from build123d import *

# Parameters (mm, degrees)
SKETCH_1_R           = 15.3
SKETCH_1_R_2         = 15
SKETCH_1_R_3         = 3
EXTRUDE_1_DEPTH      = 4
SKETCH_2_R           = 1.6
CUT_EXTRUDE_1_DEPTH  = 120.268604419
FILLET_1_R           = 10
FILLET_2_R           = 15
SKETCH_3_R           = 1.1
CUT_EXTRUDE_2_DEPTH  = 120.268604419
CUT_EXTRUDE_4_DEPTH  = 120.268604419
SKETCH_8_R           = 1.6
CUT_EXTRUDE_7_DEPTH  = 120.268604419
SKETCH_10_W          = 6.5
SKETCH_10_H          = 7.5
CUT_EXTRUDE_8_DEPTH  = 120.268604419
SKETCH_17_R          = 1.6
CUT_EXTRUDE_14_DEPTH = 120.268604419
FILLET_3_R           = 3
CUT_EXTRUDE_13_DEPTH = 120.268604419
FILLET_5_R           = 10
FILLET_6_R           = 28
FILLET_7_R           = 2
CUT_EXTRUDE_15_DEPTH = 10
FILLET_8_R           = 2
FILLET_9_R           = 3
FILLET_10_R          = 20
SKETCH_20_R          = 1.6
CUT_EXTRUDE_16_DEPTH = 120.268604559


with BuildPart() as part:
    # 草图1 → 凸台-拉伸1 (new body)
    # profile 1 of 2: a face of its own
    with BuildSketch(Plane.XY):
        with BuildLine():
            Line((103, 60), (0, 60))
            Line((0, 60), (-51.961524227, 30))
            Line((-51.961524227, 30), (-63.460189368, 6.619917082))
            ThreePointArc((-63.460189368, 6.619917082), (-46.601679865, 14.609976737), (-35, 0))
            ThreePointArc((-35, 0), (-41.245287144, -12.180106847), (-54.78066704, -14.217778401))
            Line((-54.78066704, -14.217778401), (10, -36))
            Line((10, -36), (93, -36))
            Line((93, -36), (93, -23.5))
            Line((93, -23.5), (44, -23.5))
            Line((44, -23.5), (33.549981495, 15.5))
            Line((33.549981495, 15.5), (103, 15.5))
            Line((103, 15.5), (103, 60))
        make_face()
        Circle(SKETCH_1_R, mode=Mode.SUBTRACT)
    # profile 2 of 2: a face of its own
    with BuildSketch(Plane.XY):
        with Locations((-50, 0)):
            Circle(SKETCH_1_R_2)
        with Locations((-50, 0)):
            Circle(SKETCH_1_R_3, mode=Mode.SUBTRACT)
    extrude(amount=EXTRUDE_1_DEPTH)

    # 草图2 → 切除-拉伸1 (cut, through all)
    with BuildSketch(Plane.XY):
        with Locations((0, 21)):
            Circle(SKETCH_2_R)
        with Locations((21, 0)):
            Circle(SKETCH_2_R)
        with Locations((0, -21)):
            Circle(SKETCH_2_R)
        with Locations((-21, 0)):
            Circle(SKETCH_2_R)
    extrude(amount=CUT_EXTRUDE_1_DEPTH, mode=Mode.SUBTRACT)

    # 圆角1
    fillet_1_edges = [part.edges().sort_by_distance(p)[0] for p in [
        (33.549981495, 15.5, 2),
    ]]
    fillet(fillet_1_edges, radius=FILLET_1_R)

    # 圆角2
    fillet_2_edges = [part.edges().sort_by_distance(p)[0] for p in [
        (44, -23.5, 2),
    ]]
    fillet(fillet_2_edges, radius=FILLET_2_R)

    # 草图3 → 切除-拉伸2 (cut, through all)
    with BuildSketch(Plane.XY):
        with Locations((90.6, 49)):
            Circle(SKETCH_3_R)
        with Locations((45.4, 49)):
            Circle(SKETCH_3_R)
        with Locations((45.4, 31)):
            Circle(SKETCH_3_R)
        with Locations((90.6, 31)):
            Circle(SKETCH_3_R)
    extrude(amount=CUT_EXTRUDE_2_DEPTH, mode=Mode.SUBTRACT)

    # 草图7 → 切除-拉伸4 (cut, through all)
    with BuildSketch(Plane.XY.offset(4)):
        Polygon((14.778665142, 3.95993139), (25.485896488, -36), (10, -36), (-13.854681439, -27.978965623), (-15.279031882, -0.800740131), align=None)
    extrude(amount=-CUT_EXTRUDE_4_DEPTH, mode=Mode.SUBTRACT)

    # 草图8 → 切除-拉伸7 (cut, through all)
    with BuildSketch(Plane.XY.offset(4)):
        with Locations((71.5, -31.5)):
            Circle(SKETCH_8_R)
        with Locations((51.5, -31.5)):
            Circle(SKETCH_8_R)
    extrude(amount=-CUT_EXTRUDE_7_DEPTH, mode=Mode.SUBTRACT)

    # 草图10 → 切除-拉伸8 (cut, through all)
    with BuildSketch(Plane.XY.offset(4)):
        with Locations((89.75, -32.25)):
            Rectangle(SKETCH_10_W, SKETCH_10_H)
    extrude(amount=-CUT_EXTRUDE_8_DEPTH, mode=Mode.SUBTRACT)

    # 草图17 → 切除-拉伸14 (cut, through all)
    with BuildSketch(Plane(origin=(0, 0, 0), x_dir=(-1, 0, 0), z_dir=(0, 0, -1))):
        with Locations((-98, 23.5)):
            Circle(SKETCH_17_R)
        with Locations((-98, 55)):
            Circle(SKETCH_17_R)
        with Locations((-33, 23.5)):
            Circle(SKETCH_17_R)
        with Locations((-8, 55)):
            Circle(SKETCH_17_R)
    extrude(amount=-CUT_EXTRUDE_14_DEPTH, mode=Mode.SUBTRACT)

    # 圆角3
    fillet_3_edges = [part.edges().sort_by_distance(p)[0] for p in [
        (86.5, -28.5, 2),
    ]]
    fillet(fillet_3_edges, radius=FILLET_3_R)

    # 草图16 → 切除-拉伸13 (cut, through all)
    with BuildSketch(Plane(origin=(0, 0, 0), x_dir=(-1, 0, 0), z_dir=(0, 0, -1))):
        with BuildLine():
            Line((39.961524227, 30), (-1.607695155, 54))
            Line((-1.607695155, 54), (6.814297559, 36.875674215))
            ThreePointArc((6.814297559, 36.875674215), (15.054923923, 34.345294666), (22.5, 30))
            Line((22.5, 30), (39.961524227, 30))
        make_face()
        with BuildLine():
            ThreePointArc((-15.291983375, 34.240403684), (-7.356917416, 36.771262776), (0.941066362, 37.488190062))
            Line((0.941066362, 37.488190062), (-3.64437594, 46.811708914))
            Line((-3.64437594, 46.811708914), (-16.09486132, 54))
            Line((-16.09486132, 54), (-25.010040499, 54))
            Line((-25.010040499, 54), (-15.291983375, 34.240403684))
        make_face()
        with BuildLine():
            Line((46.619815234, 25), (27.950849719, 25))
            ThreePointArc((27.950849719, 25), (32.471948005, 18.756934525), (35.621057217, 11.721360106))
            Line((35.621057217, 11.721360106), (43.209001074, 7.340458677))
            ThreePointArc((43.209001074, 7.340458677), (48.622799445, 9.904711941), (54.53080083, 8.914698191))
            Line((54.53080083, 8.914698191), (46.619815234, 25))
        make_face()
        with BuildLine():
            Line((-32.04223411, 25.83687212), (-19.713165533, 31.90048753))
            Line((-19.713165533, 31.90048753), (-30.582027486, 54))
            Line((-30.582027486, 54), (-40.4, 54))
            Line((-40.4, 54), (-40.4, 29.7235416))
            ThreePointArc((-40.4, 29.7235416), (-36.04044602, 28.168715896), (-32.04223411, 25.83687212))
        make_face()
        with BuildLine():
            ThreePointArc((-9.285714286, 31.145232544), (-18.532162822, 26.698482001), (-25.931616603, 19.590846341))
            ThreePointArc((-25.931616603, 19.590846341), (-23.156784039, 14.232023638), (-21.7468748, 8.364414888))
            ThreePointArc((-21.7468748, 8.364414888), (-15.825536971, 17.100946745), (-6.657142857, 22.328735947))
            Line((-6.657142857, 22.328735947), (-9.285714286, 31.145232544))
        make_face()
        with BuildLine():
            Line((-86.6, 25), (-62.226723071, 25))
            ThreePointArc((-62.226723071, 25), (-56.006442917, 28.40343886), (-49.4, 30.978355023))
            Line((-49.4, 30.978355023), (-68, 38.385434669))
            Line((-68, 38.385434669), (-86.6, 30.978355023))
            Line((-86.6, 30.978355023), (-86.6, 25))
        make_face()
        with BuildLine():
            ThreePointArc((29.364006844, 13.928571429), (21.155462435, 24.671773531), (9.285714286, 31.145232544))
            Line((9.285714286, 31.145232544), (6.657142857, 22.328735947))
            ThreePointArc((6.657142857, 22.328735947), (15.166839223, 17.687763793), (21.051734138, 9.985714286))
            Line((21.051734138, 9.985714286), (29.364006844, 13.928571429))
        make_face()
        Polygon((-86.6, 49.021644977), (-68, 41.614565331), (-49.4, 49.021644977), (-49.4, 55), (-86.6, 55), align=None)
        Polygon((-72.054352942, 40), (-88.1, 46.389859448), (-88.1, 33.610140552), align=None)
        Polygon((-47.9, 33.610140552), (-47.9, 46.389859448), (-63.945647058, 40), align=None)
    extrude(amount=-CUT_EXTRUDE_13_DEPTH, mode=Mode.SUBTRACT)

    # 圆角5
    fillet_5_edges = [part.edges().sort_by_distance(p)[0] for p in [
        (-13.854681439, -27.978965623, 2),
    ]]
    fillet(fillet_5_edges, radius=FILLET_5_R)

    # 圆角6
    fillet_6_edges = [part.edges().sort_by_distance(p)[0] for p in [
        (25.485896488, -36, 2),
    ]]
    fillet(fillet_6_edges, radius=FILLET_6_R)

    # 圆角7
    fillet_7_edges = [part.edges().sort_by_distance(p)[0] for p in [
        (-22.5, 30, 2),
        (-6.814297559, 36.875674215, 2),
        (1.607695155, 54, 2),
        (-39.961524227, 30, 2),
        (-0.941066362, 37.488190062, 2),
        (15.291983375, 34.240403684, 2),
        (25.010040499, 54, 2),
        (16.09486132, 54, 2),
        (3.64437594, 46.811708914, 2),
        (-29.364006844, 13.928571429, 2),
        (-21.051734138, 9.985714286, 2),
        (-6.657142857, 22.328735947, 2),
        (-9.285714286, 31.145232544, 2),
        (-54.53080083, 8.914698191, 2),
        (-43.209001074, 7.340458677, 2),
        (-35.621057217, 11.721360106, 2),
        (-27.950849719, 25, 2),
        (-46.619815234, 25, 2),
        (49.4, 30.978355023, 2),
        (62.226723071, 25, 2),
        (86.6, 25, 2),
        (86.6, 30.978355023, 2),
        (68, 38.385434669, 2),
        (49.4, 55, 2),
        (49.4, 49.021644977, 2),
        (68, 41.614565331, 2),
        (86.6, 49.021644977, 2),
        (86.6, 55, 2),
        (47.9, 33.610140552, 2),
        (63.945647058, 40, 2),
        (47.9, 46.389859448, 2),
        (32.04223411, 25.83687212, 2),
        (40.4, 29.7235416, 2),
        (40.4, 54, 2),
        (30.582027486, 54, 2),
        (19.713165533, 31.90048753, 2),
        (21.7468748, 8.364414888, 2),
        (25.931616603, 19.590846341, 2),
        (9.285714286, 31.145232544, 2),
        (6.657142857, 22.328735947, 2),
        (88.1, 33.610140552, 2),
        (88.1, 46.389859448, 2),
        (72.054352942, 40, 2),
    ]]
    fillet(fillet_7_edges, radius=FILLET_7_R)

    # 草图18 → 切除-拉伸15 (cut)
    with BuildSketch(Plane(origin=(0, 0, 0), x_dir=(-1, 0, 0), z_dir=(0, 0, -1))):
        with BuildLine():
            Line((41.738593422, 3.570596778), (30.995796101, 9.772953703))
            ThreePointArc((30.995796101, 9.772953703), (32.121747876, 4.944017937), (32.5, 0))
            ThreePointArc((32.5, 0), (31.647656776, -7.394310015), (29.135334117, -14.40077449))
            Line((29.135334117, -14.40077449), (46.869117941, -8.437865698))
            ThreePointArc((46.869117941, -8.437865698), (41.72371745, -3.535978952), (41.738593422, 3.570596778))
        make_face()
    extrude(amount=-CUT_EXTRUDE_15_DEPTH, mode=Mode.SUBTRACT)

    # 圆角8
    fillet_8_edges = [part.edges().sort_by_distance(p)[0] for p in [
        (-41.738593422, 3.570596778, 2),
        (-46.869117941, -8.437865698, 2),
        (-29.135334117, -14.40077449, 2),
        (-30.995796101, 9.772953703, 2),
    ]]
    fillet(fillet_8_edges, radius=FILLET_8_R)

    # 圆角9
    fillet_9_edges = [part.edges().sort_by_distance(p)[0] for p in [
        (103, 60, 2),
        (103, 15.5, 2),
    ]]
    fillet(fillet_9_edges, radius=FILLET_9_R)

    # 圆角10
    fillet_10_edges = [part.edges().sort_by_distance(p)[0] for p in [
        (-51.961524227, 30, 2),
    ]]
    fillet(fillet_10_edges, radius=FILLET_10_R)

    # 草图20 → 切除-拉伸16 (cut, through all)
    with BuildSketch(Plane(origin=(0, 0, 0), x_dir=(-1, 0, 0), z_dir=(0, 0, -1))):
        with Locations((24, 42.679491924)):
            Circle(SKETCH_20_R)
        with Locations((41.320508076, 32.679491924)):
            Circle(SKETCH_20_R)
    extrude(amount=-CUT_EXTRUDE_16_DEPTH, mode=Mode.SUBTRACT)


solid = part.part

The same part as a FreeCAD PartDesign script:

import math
import FreeCAD as App
import Part
import Sketcher

V = App.Vector
Q = App.Units.Quantity


def edges_at(feature, points):
    """Names of the edges that pass closest to the given points."""
    edges = feature.Shape.Edges
    near = lambda p: min(range(len(edges)), key=lambda i: edges[i].distToShape(Part.Vertex(*p))[0])
    return sorted({f"Edge{near(p) + 1}" for p in points})


def add_polygon(sketch, points):
    """Adds a closed chain of lines whose ends are joined by coincident constraints."""
    first, n = sketch.GeometryCount, len(points)
    for a, b in zip(points, points[1:] + points[:1]):
        sketch.addGeometry(Part.LineSegment(App.Vector(*a, 0), App.Vector(*b, 0)), False)
    for i in range(n):
        sketch.addConstraint(Sketcher.Constraint("Coincident", first + i, 2, first + (i + 1) % n, 1))

doc = App.newDocument("Part")
body = doc.addObject("PartDesign::Body", "Body")

sketch1 = body.newObject("Sketcher::SketchObject", "Sketch")
sketch1.AttachmentSupport = (doc.getObject("XY_Plane"), [""])
sketch1.MapMode = "FlatFace"
sketch1.addGeometry(Part.LineSegment(V(103, 60, 0), V(0, 60, 0)), False)
sketch1.addGeometry(Part.LineSegment(V(0, 60, 0), V(-52, 30, 0)), False)
sketch1.addGeometry(Part.LineSegment(V(-52, 30, 0), V(-63.5, 6.6, 0)), False)
sketch1.addGeometry(Part.ArcOfCircle(Part.Circle(V(-50, 0, 0), V(0, 0, 1), 15), math.radians(154), math.radians(251)), False)
sketch1.addGeometry(Part.LineSegment(V(-54.8, -14.2, 0), V(10, -36, 0)), False)
sketch1.addGeometry(Part.LineSegment(V(10, -36, 0), V(93, -36, 0)), False)
sketch1.addGeometry(Part.LineSegment(V(93, -36, 0), V(93, -23.5, 0)), False)
sketch1.addGeometry(Part.LineSegment(V(93, -23.5, 0), V(44, -23.5, 0)), False)
sketch1.addGeometry(Part.LineSegment(V(44, -23.5, 0), V(33.5, 15.5, 0)), False)
sketch1.addGeometry(Part.LineSegment(V(33.5, 15.5, 0), V(103, 15.5, 0)), False)
sketch1.addGeometry(Part.LineSegment(V(103, 15.5, 0), V(103, 60, 0)), False)
sketch1.addGeometry(Part.Circle(V(0, 0, 0), V(0, 0, 1), 15.3), False)
sketch1.addGeometry(Part.Circle(V(-50, 0, 0), V(0, 0, 1), 3), False)
sketch1.addConstraint(Sketcher.Constraint("Coincident", 0, 2, 1, 1))
sketch1.addConstraint(Sketcher.Constraint("Coincident", 1, 2, 2, 1))
sketch1.addConstraint(Sketcher.Constraint("Tangent", 2, 2, 3, 1))
sketch1.addConstraint(Sketcher.Constraint("Tangent", 3, 2, 4, 1))
sketch1.addConstraint(Sketcher.Constraint("Coincident", 4, 2, 5, 1))
sketch1.addConstraint(Sketcher.Constraint("Coincident", 5, 2, 6, 1))
sketch1.addConstraint(Sketcher.Constraint("Coincident", 6, 2, 7, 1))
sketch1.addConstraint(Sketcher.Constraint("Coincident", 7, 2, 8, 1))
sketch1.addConstraint(Sketcher.Constraint("Coincident", 8, 2, 9, 1))
sketch1.addConstraint(Sketcher.Constraint("Coincident", 9, 2, 10, 1))
sketch1.addConstraint(Sketcher.Constraint("Coincident", 10, 2, 0, 1))
sketch1.addConstraint(Sketcher.Constraint("Horizontal", 0))
sketch1.addConstraint(Sketcher.Constraint("Horizontal", 5))
sketch1.addConstraint(Sketcher.Constraint("Vertical", 6))
sketch1.addConstraint(Sketcher.Constraint("Horizontal", 7))
sketch1.addConstraint(Sketcher.Constraint("Horizontal", 9))
sketch1.addConstraint(Sketcher.Constraint("Vertical", 10))
sketch1.addConstraint(Sketcher.Constraint("Coincident", 11, 3, -1, 1))
sketch1.addConstraint(Sketcher.Constraint("Coincident", 12, 3, 3, 3))
sketch1.addConstraint(Sketcher.Constraint("PointOnObject", 3, 3, -1))
sketch1.addConstraint(Sketcher.Constraint("PointOnObject", 0, 2, -2))
sketch1.addConstraint(Sketcher.Constraint("Diameter", 12, Q("6 mm")))
sketch1.addConstraint(Sketcher.Constraint("Radius", 3, Q("15 mm")))
sketch1.addConstraint(Sketcher.Constraint("Diameter", 11, Q("30.6 mm")))
sketch1.addConstraint(Sketcher.Constraint("DistanceX", 0, 2, 0, 1, Q("103 mm")))
sketch1.addConstraint(Sketcher.Constraint("DistanceX", 5, 1, 5, 2, Q("83 mm")))
sketch1.addConstraint(Sketcher.Constraint("DistanceX", 7, 2, 7, 1, Q("49 mm")))
sketch1.addConstraint(Sketcher.Constraint("Angle", 1, Q("-150 deg")))
sketch1.addConstraint(Sketcher.Constraint("Angle", 8, Q("105 deg")))
sketch1.addConstraint(Sketcher.Constraint("Distance", 1, Q("60 mm")))
sketch1.addConstraint(Sketcher.Constraint("DistanceY", 6, 1, 6, 2, Q("12.5 mm")))
sketch1.addConstraint(Sketcher.Constraint("DistanceY", 10, 1, 10, 2, Q("44.5 mm")))
sketch1.addConstraint(Sketcher.Constraint("DistanceX", 3, 3, -1, 1, Q("50 mm")))
sketch1.addConstraint(Sketcher.Constraint("DistanceY", -1, 1, 0, 2, Q("60 mm")))
sketch1.addConstraint(Sketcher.Constraint("DistanceX", -1, 1, 4, 2, Q("10 mm")))
sketch1.addConstraint(Sketcher.Constraint("DistanceY", 4, 2, -1, 1, Q("36 mm")))
pad1 = body.newObject("PartDesign::Pad", "Pad")
pad1.Profile = sketch1
pad1.Length = 4

sketch2 = body.newObject("Sketcher::SketchObject", "Sketch001")
sketch2.AttachmentSupport = (doc.getObject("XY_Plane"), [""])
sketch2.MapMode = "FlatFace"
sketch2.addGeometry(Part.Circle(V(0, 21, 0), V(0, 0, 1), 1.6), False)
sketch2.addGeometry(Part.Circle(V(21, 0, 0), V(0, 0, 1), 1.6), False)
sketch2.addGeometry(Part.Circle(V(0, -21, 0), V(0, 0, 1), 1.6), False)
sketch2.addGeometry(Part.Circle(V(-21, 0, 0), V(0, 0, 1), 1.6), False)
sketch2.addConstraint(Sketcher.Constraint("Equal", 0, 1))
sketch2.addConstraint(Sketcher.Constraint("Equal", 1, 2))
sketch2.addConstraint(Sketcher.Constraint("Equal", 2, 3))
sketch2.addConstraint(Sketcher.Constraint("Symmetric", 0, 3, 2, 3, -1, 1))
sketch2.addConstraint(Sketcher.Constraint("Symmetric", 1, 3, 3, 3, -1, 1))
sketch2.addConstraint(Sketcher.Constraint("PointOnObject", 0, 3, -2))
sketch2.addConstraint(Sketcher.Constraint("PointOnObject", 1, 3, -1))
sketch2.addConstraint(Sketcher.Constraint("Diameter", 0, Q("3.2 mm")))
sketch2.addConstraint(Sketcher.Constraint("DistanceY", -1, 1, 0, 3, Q("21 mm")))
sketch2.addConstraint(Sketcher.Constraint("DistanceX", -1, 1, 1, 3, Q("21 mm")))
pocket1 = body.newObject("PartDesign::Pocket", "Pocket")
pocket1.Profile = sketch2
pocket1.Type = "ThroughAll"
pocket1.Reversed = True
doc.recompute()

fillet = body.newObject("PartDesign::Fillet", "Fillet")
fillet.Base = (pocket1, edges_at(pocket1, [(33.55, 15.5, 2)]))
fillet.Radius = 10
doc.recompute()

fillet2 = body.newObject("PartDesign::Fillet", "Fillet001")
fillet2.Base = (fillet, edges_at(fillet, [(44, -23.5, 2)]))
fillet2.Radius = 15

sketch3 = body.newObject("Sketcher::SketchObject", "Sketch002")
sketch3.AttachmentSupport = (doc.getObject("XY_Plane"), [""])
sketch3.MapMode = "FlatFace"
sketch3.addGeometry(Part.Circle(V(90.6, 49, 0), V(0, 0, 1), 1.1), False)
sketch3.addGeometry(Part.Circle(V(45.4, 49, 0), V(0, 0, 1), 1.1), False)
sketch3.addGeometry(Part.Circle(V(45.4, 31, 0), V(0, 0, 1), 1.1), False)
sketch3.addGeometry(Part.Circle(V(90.6, 31, 0), V(0, 0, 1), 1.1), False)
sketch3.addConstraint(Sketcher.Constraint("Equal", 0, 1))
sketch3.addConstraint(Sketcher.Constraint("Equal", 1, 2))
sketch3.addConstraint(Sketcher.Constraint("Equal", 2, 3))
sketch3.addConstraint(Sketcher.Constraint("Horizontal", 0, 3, 1, 3))
sketch3.addConstraint(Sketcher.Constraint("Horizontal", 2, 3, 3, 3))
sketch3.addConstraint(Sketcher.Constraint("Vertical", 1, 3, 2, 3))
sketch3.addConstraint(Sketcher.Constraint("Vertical", 0, 3, 3, 3))
sketch3.addConstraint(Sketcher.Constraint("Diameter", 0, Q("2.2 mm")))
sketch3.addConstraint(Sketcher.Constraint("DistanceY", -1, 1, 0, 3, Q("49 mm")))
sketch3.addConstraint(Sketcher.Constraint("DistanceY", -1, 1, 2, 3, Q("31 mm")))
sketch3.addConstraint(Sketcher.Constraint("DistanceX", -1, 1, 0, 3, Q("90.6 mm")))
sketch3.addConstraint(Sketcher.Constraint("DistanceX", -1, 1, 1, 3, Q("45.4 mm")))
pocket2 = body.newObject("PartDesign::Pocket", "Pocket001")
pocket2.Profile = sketch3
pocket2.Type = "ThroughAll"
pocket2.Reversed = True

sketch4 = body.newObject("Sketcher::SketchObject", "Sketch003")
sketch4.AttachmentSupport = (doc.getObject("XY_Plane"), [""])
sketch4.MapMode = "FlatFace"
sketch4.AttachmentOffset = App.Placement(V(0, 0, 4), App.Rotation())
add_polygon(sketch4, [(25, -36), (15, 4), (-15, -1), (-14, -28), (10, -36)])
sketch4.addConstraint(Sketcher.Constraint("Horizontal", 4))
sketch4.addConstraint(Sketcher.Constraint("Angle", 0, Q("105 deg")))
sketch4.addConstraint(Sketcher.Constraint("Angle", 1, Q("-171 deg")))
sketch4.addConstraint(Sketcher.Constraint("Angle", 2, Q("-87 deg")))
sketch4.addConstraint(Sketcher.Constraint("DistanceX", -1, 1, 3, 2, Q("10 mm")))
sketch4.addConstraint(Sketcher.Constraint("DistanceY", 3, 2, -1, 1, Q("36 mm")))
sketch4.addConstraint(Sketcher.Constraint("Distance", 1, Q("30.43237 mm")))
sketch4.addConstraint(Sketcher.Constraint("DistanceX", 4, 1, 4, 2, Q("15.485896 mm")))
sketch4.addConstraint(Sketcher.Constraint("DistanceY", -1, 1, 0, 2, Q("3.959931 mm")))
sketch4.addConstraint(Sketcher.Constraint("DistanceX", 2, 2, -1, 1, Q("13.854681 mm")))
pocket3 = body.newObject("PartDesign::Pocket", "Pocket002")
pocket3.Profile = sketch4
pocket3.Type = "ThroughAll"

sketch5 = body.newObject("Sketcher::SketchObject", "Sketch004")
sketch5.AttachmentSupport = (doc.getObject("XY_Plane"), [""])
sketch5.MapMode = "FlatFace"
sketch5.AttachmentOffset = App.Placement(V(0, 0, 4), App.Rotation())
sketch5.addGeometry(Part.Circle(V(71.5, -31.5, 0), V(0, 0, 1), 1.6), False)
sketch5.addGeometry(Part.Circle(V(51.5, -31.5, 0), V(0, 0, 1), 1.6), False)
sketch5.addConstraint(Sketcher.Constraint("Equal", 0, 1))
sketch5.addConstraint(Sketcher.Constraint("Horizontal", 0, 3, 1, 3))
sketch5.addConstraint(Sketcher.Constraint("Diameter", 0, Q("3.2 mm")))
sketch5.addConstraint(Sketcher.Constraint("DistanceX", 1, 3, 0, 3, Q("20 mm")))
sketch5.addConstraint(Sketcher.Constraint("DistanceX", -1, 1, 0, 3, Q("71.5 mm")))
sketch5.addConstraint(Sketcher.Constraint("DistanceY", 0, 3, -1, 1, Q("31.5 mm")))
pocket4 = body.newObject("PartDesign::Pocket", "Pocket003")
pocket4.Profile = sketch5
pocket4.Type = "ThroughAll"

sketch6 = body.newObject("Sketcher::SketchObject", "Sketch005")
sketch6.AttachmentSupport = (doc.getObject("XY_Plane"), [""])
sketch6.MapMode = "FlatFace"
sketch6.AttachmentOffset = App.Placement(V(0, 0, 4), App.Rotation())
add_polygon(sketch6, [(86, -28), (86, -36), (93, -36), (93, -28)])
sketch6.addConstraint(Sketcher.Constraint("Vertical", 0))
sketch6.addConstraint(Sketcher.Constraint("Horizontal", 1))
sketch6.addConstraint(Sketcher.Constraint("Vertical", 2))
sketch6.addConstraint(Sketcher.Constraint("Horizontal", 3))
sketch6.addConstraint(Sketcher.Constraint("DistanceX", 1, 1, 1, 2, Q("6.5 mm")))
sketch6.addConstraint(Sketcher.Constraint("DistanceY", 0, 2, 0, 1, Q("7.5 mm")))
sketch6.addConstraint(Sketcher.Constraint("DistanceY", 0, 2, -1, 1, Q("36 mm")))
sketch6.addConstraint(Sketcher.Constraint("DistanceX", -1, 1, 1, 2, Q("93 mm")))
pocket5 = body.newObject("PartDesign::Pocket", "Pocket004")
pocket5.Profile = sketch6
pocket5.Type = "ThroughAll"

sketch7 = body.newObject("Sketcher::SketchObject", "Sketch006")
sketch7.AttachmentSupport = (doc.getObject("XY_Plane"), [""])
sketch7.MapMode = "FlatFace"
sketch7.addGeometry(Part.Circle(V(98, 23.5, 0), V(0, 0, 1), 1.6), False)
sketch7.addGeometry(Part.Circle(V(98, 55, 0), V(0, 0, 1), 1.6), False)
sketch7.addGeometry(Part.Circle(V(33, 23.5, 0), V(0, 0, 1), 1.6), False)
sketch7.addGeometry(Part.Circle(V(8, 55, 0), V(0, 0, 1), 1.6), False)
sketch7.addConstraint(Sketcher.Constraint("Equal", 0, 1))
sketch7.addConstraint(Sketcher.Constraint("Equal", 1, 2))
sketch7.addConstraint(Sketcher.Constraint("Equal", 2, 3))
sketch7.addConstraint(Sketcher.Constraint("Horizontal", 0, 3, 2, 3))
sketch7.addConstraint(Sketcher.Constraint("Horizontal", 1, 3, 3, 3))
sketch7.addConstraint(Sketcher.Constraint("Vertical", 0, 3, 1, 3))
sketch7.addConstraint(Sketcher.Constraint("Diameter", 0, Q("3.2 mm")))
sketch7.addConstraint(Sketcher.Constraint("DistanceX", -1, 1, 0, 3, Q("98 mm")))
sketch7.addConstraint(Sketcher.Constraint("DistanceY", -1, 1, 1, 3, Q("55 mm")))
sketch7.addConstraint(Sketcher.Constraint("DistanceX", -1, 1, 2, 3, Q("33 mm")))
sketch7.addConstraint(Sketcher.Constraint("DistanceX", -1, 1, 3, 3, Q("8 mm")))
sketch7.addConstraint(Sketcher.Constraint("DistanceY", -1, 1, 0, 3, Q("23.5 mm")))
pocket6 = body.newObject("PartDesign::Pocket", "Pocket005")
pocket6.Profile = sketch7
pocket6.Type = "ThroughAll"
pocket6.Reversed = True
doc.recompute()

fillet3 = body.newObject("PartDesign::Fillet", "Fillet002")
fillet3.Base = (pocket6, edges_at(pocket6, [(86.5, -28.5, 2)]))
fillet3.Radius = 3

sketch8 = body.newObject("Sketcher::SketchObject", "Sketch007")
sketch8.AttachmentSupport = (doc.getObject("XY_Plane"), [""])
sketch8.MapMode = "FlatFace"
sketch8.addGeometry(Part.LineSegment(V(-40, 30, 0), V(2, 54, 0)), False)
sketch8.addGeometry(Part.LineSegment(V(2, 54, 0), V(-7, 37, 0)), False)
sketch8.addGeometry(Part.ArcOfCircle(Part.Circle(V(0, 0, 0), V(0, 0, 1), 37), math.radians(100), math.radians(127)), False)
sketch8.addGeometry(Part.LineSegment(V(-22, 30, 0), V(-40, 30, 0)), False)
sketch8.addGeometry(Part.ArcOfCircle(Part.Circle(V(0, 0, 0), V(0, 0, 1), 37), math.radians(66), math.radians(91)), False)
sketch8.addGeometry(Part.LineSegment(V(-1, 37, 0), V(4, 47, 0)), False)
sketch8.addGeometry(Part.LineSegment(V(4, 47, 0), V(16, 54, 0)), False)
sketch8.addGeometry(Part.LineSegment(V(16, 54, 0), V(25, 54, 0)), False)
sketch8.addGeometry(Part.LineSegment(V(25, 54, 0), V(15, 34, 0)), False)
sketch8.addGeometry(Part.LineSegment(V(-47, 25, 0), V(-28, 25, 0)), False)
sketch8.addGeometry(Part.ArcOfCircle(Part.Circle(V(0, 0, 0), V(0, 0, 1), 37), math.radians(138), math.radians(162)), False)
sketch8.addGeometry(Part.LineSegment(V(-36, 12, 0), V(-43, 7, 0)), False)
sketch8.addGeometry(Part.ArcOfCircle(Part.Circle(V(-50, 0, 0), V(0, 0, 1), 10), math.radians(47), math.radians(117)), False)
sketch8.addGeometry(Part.LineSegment(V(-55, 9, 0), V(-47, 25, 0)), False)
sketch8.addGeometry(Part.LineSegment(V(32, 26, 0), V(20, 32, 0)), False)
sketch8.addGeometry(Part.LineSegment(V(20, 32, 0), V(31, 54, 0)), False)
sketch8.addGeometry(Part.LineSegment(V(31, 54, 0), V(40, 54, 0)), False)
sketch8.addGeometry(Part.LineSegment(V(40, 54, 0), V(40, 30, 0)), False)
sketch8.addGeometry(Part.ArcOfCircle(Part.Circle(V(47, 5, 0), V(0, 0, 1), 25), math.radians(104), math.radians(126)), False)
sketch8.addGeometry(Part.ArcOfCircle(Part.Circle(V(0, 0, 0), V(0, 0, 1), 32), math.radians(37), math.radians(73)), False)
sketch8.addGeometry(Part.ArcOfCircle(Part.Circle(V(47, 5, 0), V(0, 0, 1), 25), math.radians(146), math.radians(173)), False)
sketch8.addGeometry(Part.ArcOfCircle(Part.Circle(V(0, 0, 0), V(0, 0, 1), 23), math.radians(21), math.radians(73)), False)
sketch8.addGeometry(Part.LineSegment(V(7, 22, 0), V(9, 31, 0)), False)
sketch8.addGeometry(Part.LineSegment(V(87, 25, 0), V(62, 25, 0)), False)
sketch8.addGeometry(Part.ArcOfCircle(Part.Circle(V(33, -21, 0), V(0, 0, 1), 55), math.radians(57.62), math.radians(72.4)), False)
sketch8.addGeometry(Part.LineSegment(V(49, 31, 0), V(68, 38, 0)), False)
sketch8.addGeometry(Part.LineSegment(V(68, 38, 0), V(87, 31, 0)), False)
sketch8.addGeometry(Part.LineSegment(V(87, 31, 0), V(87, 25, 0)), False)
sketch8.addGeometry(Part.ArcOfCircle(Part.Circle(V(0, 0, 0), V(0, 0, 1), 32), math.radians(107), math.radians(155)), False)
sketch8.addGeometry(Part.LineSegment(V(-9, 31, 0), V(-7, 22, 0)), False)
sketch8.addGeometry(Part.ArcOfCircle(Part.Circle(V(0, 0, 0), V(0, 0, 1), 23), math.radians(107), math.radians(155)), False)
sketch8.addGeometry(Part.LineSegment(V(-21, 10, 0), V(-29, 14, 0)), False)
add_polygon(sketch8, [(87, 49), (68, 42), (49, 49), (49, 55), (87, 55)])
add_polygon(sketch8, [(72, 40), (88, 46), (88, 34)])
add_polygon(sketch8, [(48, 34), (48, 46), (64, 40)])
sketch8.addConstraint(Sketcher.Constraint("Coincident", 0, 2, 1, 1))
sketch8.addConstraint(Sketcher.Constraint("Coincident", 1, 2, 2, 1))
sketch8.addConstraint(Sketcher.Constraint("Coincident", 2, 2, 3, 1))
sketch8.addConstraint(Sketcher.Constraint("Coincident", 3, 2, 0, 1))
sketch8.addConstraint(Sketcher.Constraint("Coincident", 4, 2, 5, 1))
sketch8.addConstraint(Sketcher.Constraint("Coincident", 5, 2, 6, 1))
sketch8.addConstraint(Sketcher.Constraint("Coincident", 6, 2, 7, 1))
sketch8.addConstraint(Sketcher.Constraint("Coincident", 7, 2, 8, 1))
sketch8.addConstraint(Sketcher.Constraint("Coincident", 8, 2, 4, 1))
sketch8.addConstraint(Sketcher.Constraint("Coincident", 9, 2, 10, 1))
sketch8.addConstraint(Sketcher.Constraint("Coincident", 10, 2, 11, 1))
sketch8.addConstraint(Sketcher.Constraint("Coincident", 11, 2, 12, 1))
sketch8.addConstraint(Sketcher.Constraint("Coincident", 12, 2, 13, 1))
sketch8.addConstraint(Sketcher.Constraint("Coincident", 13, 2, 9, 1))
sketch8.addConstraint(Sketcher.Constraint("Coincident", 14, 2, 15, 1))
sketch8.addConstraint(Sketcher.Constraint("Coincident", 15, 2, 16, 1))
sketch8.addConstraint(Sketcher.Constraint("Coincident", 16, 2, 17, 1))
sketch8.addConstraint(Sketcher.Constraint("Coincident", 17, 2, 18, 1))
sketch8.addConstraint(Sketcher.Constraint("Coincident", 18, 2, 14, 1))
sketch8.addConstraint(Sketcher.Constraint("Coincident", 19, 1, 20, 1))
sketch8.addConstraint(Sketcher.Constraint("Coincident", 20, 2, 21, 1))
sketch8.addConstraint(Sketcher.Constraint("Coincident", 21, 2, 22, 1))
sketch8.addConstraint(Sketcher.Constraint("Coincident", 22, 2, 19, 2))
sketch8.addConstraint(Sketcher.Constraint("Coincident", 23, 2, 24, 1))
sketch8.addConstraint(Sketcher.Constraint("Coincident", 24, 2, 25, 1))
sketch8.addConstraint(Sketcher.Constraint("Coincident", 25, 2, 26, 1))
sketch8.addConstraint(Sketcher.Constraint("Coincident", 26, 2, 27, 1))
sketch8.addConstraint(Sketcher.Constraint("Coincident", 27, 2, 23, 1))
sketch8.addConstraint(Sketcher.Constraint("Coincident", 28, 1, 29, 1))
sketch8.addConstraint(Sketcher.Constraint("Coincident", 29, 2, 30, 1))
sketch8.addConstraint(Sketcher.Constraint("Coincident", 30, 2, 31, 1))
sketch8.addConstraint(Sketcher.Constraint("Coincident", 31, 2, 28, 2))
sketch8.addConstraint(Sketcher.Constraint("Horizontal", 3))
sketch8.addConstraint(Sketcher.Constraint("Horizontal", 7))
sketch8.addConstraint(Sketcher.Constraint("Horizontal", 9))
sketch8.addConstraint(Sketcher.Constraint("Horizontal", 16))
sketch8.addConstraint(Sketcher.Constraint("Vertical", 17))
sketch8.addConstraint(Sketcher.Constraint("Horizontal", 23))
sketch8.addConstraint(Sketcher.Constraint("Vertical", 27))
sketch8.addConstraint(Sketcher.Constraint("Vertical", 34))
sketch8.addConstraint(Sketcher.Constraint("Horizontal", 35))
sketch8.addConstraint(Sketcher.Constraint("Vertical", 36))
sketch8.addConstraint(Sketcher.Constraint("Vertical", 38))
sketch8.addConstraint(Sketcher.Constraint("Vertical", 40))
sketch8.addConstraint(Sketcher.Constraint("Coincident", 2, 3, -1, 1))
sketch8.addConstraint(Sketcher.Constraint("Coincident", 4, 3, -1, 1))
sketch8.addConstraint(Sketcher.Constraint("Coincident", 10, 3, -1, 1))
sketch8.addConstraint(Sketcher.Constraint("Coincident", 19, 3, -1, 1))
sketch8.addConstraint(Sketcher.Constraint("Coincident", 21, 3, -1, 1))
sketch8.addConstraint(Sketcher.Constraint("Coincident", 28, 3, -1, 1))
sketch8.addConstraint(Sketcher.Constraint("Coincident", 30, 3, -1, 1))
sketch8.addConstraint(Sketcher.Constraint("Coincident", 20, 3, 18, 3))
sketch8.addConstraint(Sketcher.Constraint("Equal", 2, 4))
sketch8.addConstraint(Sketcher.Constraint("Equal", 4, 10))
sketch8.addConstraint(Sketcher.Constraint("Equal", 18, 20))
sketch8.addConstraint(Sketcher.Constraint("Equal", 19, 28))
sketch8.addConstraint(Sketcher.Constraint("Equal", 21, 30))
sketch8.addConstraint(Sketcher.Constraint("PointOnObject", 12, 3, -1))
sketch8.addConstraint(Sketcher.Constraint("Parallel", 1, 5))
sketch8.addConstraint(Sketcher.Constraint("Parallel", 0, 6))
sketch8.addConstraint(Sketcher.Constraint("Parallel", 5, 8))
sketch8.addConstraint(Sketcher.Constraint("Parallel", 6, 11))
sketch8.addConstraint(Sketcher.Constraint("Parallel", 8, 13))
sketch8.addConstraint(Sketcher.Constraint("Perpendicular", 13, 14))
sketch8.addConstraint(Sketcher.Constraint("Perpendicular", 14, 15))
sketch8.addConstraint(Sketcher.Constraint("Parallel", 25, 32))
sketch8.addConstraint(Sketcher.Constraint("Parallel", 26, 33))
sketch8.addConstraint(Sketcher.Constraint("Parallel", 32, 37))
sketch8.addConstraint(Sketcher.Constraint("Parallel", 33, 39))
sketch8.addConstraint(Sketcher.Constraint("Parallel", 39, 41))
sketch8.addConstraint(Sketcher.Constraint("Parallel", 37, 42))
sketch8.addConstraint(Sketcher.Constraint("Horizontal", 0, 2, 6, 2))
sketch8.addConstraint(Sketcher.Constraint("Horizontal", 7, 2, 15, 2))
sketch8.addConstraint(Sketcher.Constraint("Horizontal", 13, 2, 23, 2))
sketch8.addConstraint(Sketcher.Constraint("Horizontal", 24, 2, 26, 2))
sketch8.addConstraint(Sketcher.Constraint("Horizontal", 22, 2, 28, 1))
sketch8.addConstraint(Sketcher.Constraint("Horizontal", 21, 2, 29, 2))
sketch8.addConstraint(Sketcher.Constraint("Horizontal", 33, 2, 36, 2))
sketch8.addConstraint(Sketcher.Constraint("Horizontal", 37, 2, 40, 2))
sketch8.addConstraint(Sketcher.Constraint("Horizontal", 39, 2, 41, 2))
sketch8.addConstraint(Sketcher.Constraint("Horizontal", 38, 2, 42, 2))
sketch8.addConstraint(Sketcher.Constraint("Vertical", 25, 2, 32, 2))
sketch8.addConstraint(Sketcher.Constraint("Vertical", 24, 2, 33, 2))
sketch8.addConstraint(Sketcher.Constraint("Equal", 27, 34))
sketch8.addConstraint(Sketcher.Constraint("Radius", 12, Q("10 mm")))
sketch8.addConstraint(Sketcher.Constraint("Radius", 18, Q("25 mm")))
sketch8.addConstraint(Sketcher.Constraint("Radius", 24, Q("55 mm")))
sketch8.addConstraint(Sketcher.Constraint("Radius", 2, Q("37.5 mm")))
sketch8.addConstraint(Sketcher.Constraint("Radius", 19, Q("32.5 mm")))
sketch8.addConstraint(Sketcher.Constraint("Radius", 21, Q("23.3 mm")))
sketch8.addConstraint(Sketcher.Constraint("Angle", 0, Q("30 deg")))
sketch8.addConstraint(Sketcher.Constraint("Distance", 0, Q("48 mm")))
sketch8.addConstraint(Sketcher.Constraint("DistanceX", 35, 1, 35, 2, Q("37.2 mm")))
sketch8.addConstraint(Sketcher.Constraint("DistanceX", 12, 3, -1, 1, Q("50 mm")))
sketch8.addConstraint(Sketcher.Constraint("DistanceY", -1, 1, 0, 2, Q("54 mm")))
sketch8.addConstraint(Sketcher.Constraint("DistanceY", -1, 1, 9, 2, Q("25 mm")))
sketch8.addConstraint(Sketcher.Constraint("DistanceX", -1, 1, 25, 2, Q("68 mm")))
sketch8.addConstraint(Sketcher.Constraint("DistanceY", -1, 1, 34, 2, Q("55 mm")))
sketch8.addConstraint(Sketcher.Constraint("DistanceY", -1, 1, 39, 2, Q("40 mm")))
sketch8.addConstraint(Sketcher.Constraint("DistanceX", 17, 2, 24, 2, Q("9 mm")))
sketch8.addConstraint(Sketcher.Constraint("DistanceY", -1, 1, 18, 3, Q("5.5 mm")))
sketch8.addConstraint(Sketcher.Constraint("DistanceX", -1, 1, 37, 2, Q("88.1 mm")))
sketch8.addConstraint(Sketcher.Constraint("DistanceX", -1, 1, 40, 2, Q("47.9 mm")))
sketch8.addConstraint(Sketcher.Constraint("DistanceX", 18, 2, 20, 3, Q("14.540001 mm")))
sketch8.addConstraint(Sketcher.Constraint("DistanceX", 11, 2, -1, 1, Q("43.209001 mm")))
sketch8.addConstraint(Sketcher.Constraint("DistanceX", 7, 1, 7, 2, Q("8.915179 mm")))
sketch8.addConstraint(Sketcher.Constraint("DistanceY", 17, 2, 17, 1, Q("24.276458 mm")))
sketch8.addConstraint(Sketcher.Constraint("DistanceY", 38, 2, 38, 1, Q("12.779719 mm")))
sketch8.addConstraint(Sketcher.Constraint("DistanceX", 12, 2, -1, 1, Q("54.530801 mm")))
sketch8.addConstraint(Sketcher.Constraint("DistanceX", 3, 2, 5, 2, Q("43.6059 mm")))
sketch8.addConstraint(Sketcher.Constraint("Distance", 13, Q("17.925418 mm")))
sketch8.addConstraint(Sketcher.Constraint("Distance", 14, Q("13.739482 mm")))
sketch8.addConstraint(Sketcher.Constraint("Distance", 25, Q("20.02061 mm")))
sketch8.addConstraint(Sketcher.Constraint("DistanceX", 3, 2, 3, 1, Q("17.461524 mm")))
sketch8.addConstraint(Sketcher.Constraint("DistanceX", 23, 2, 23, 1, Q("24.373277 mm")))
sketch8.addConstraint(Sketcher.Constraint("DistanceY", 27, 2, 27, 1, Q("5.978355 mm")))
sketch8.addConstraint(Sketcher.Constraint("DistanceY", -1, 1, 5, 2, Q("46.811709 mm")))
sketch8.addConstraint(Sketcher.Constraint("DistanceY", -1, 1, 31, 2, Q("13.928571 mm")))
sketch8.addConstraint(Sketcher.Constraint("DistanceX", 21, 2, 8, 2, Q("8.634841 mm")))
sketch8.addConstraint(Sketcher.Constraint("DistanceX", 22, 2, 8, 2, Q("6.006269 mm")))
sketch8.addConstraint(Sketcher.Constraint("DistanceX", 30, 2, 29, 2, Q("14.394591 mm")))
pocket7 = body.newObject("PartDesign::Pocket", "Pocket006")
pocket7.Profile = sketch8
pocket7.Type = "ThroughAll"
pocket7.Reversed = True
doc.recompute()

fillet4 = body.newObject("PartDesign::Fillet", "Fillet003")
fillet4.Base = (pocket7, edges_at(pocket7, [(-13.855, -27.979, 2)]))
fillet4.Radius = 10
doc.recompute()

fillet5 = body.newObject("PartDesign::Fillet", "Fillet004")
fillet5.Base = (fillet4, edges_at(fillet4, [(25.486, -36, 2)]))
fillet5.Radius = 28
doc.recompute()

fillet6 = body.newObject("PartDesign::Fillet", "Fillet005")
fillet6.Base = (fillet5, edges_at(fillet5, [
    (-22.5, 30, 2),
    (-6.814, 36.876, 2),
    (1.608, 54, 2),
    (-39.962, 30, 2),
    (-0.941, 37.488, 2),
    (15.292, 34.24, 2),
    (25.01, 54, 2),
    (16.095, 54, 2),
    (3.644, 46.812, 2),
    (-29.364, 13.929, 2),
    (-21.052, 9.986, 2),
    (-6.657, 22.329, 2),
    (-9.286, 31.145, 2),
    (-54.531, 8.915, 2),
    (-43.209, 7.34, 2),
    (-35.621, 11.721, 2),
    (-27.951, 25, 2),
    (-46.62, 25, 2),
    (49.4, 30.978, 2),
    (62.227, 25, 2),
    (86.6, 25, 2),
    (86.6, 30.978, 2),
    (68, 38.385, 2),
    (49.4, 55, 2),
    (49.4, 49.022, 2),
    (68, 41.615, 2),
    (86.6, 49.022, 2),
    (86.6, 55, 2),
    (47.9, 33.61, 2),
    (63.946, 40, 2),
    (47.9, 46.39, 2),
    (32.042, 25.837, 2),
    (40.4, 29.724, 2),
    (40.4, 54, 2),
    (30.582, 54, 2),
    (19.713, 31.9, 2),
    (21.747, 8.364, 2),
    (25.932, 19.591, 2),
    (9.286, 31.145, 2),
    (6.657, 22.329, 2),
    (88.1, 33.61, 2),
    (88.1, 46.39, 2),
    (72.054, 40, 2),
]))
fillet6.Radius = 2

sketch9 = body.newObject("Sketcher::SketchObject", "Sketch008")
sketch9.AttachmentSupport = (doc.getObject("XY_Plane"), [""])
sketch9.MapMode = "FlatFace"
sketch9.addGeometry(Part.LineSegment(V(-42, 4, 0), V(-31, 10, 0)), False)
sketch9.addGeometry(Part.ArcOfCircle(Part.Circle(V(0, 0, 0), V(0, 0, 1), 33), math.radians(162.5), math.radians(180)), False)
sketch9.addGeometry(Part.ArcOfCircle(Part.Circle(V(0, 0, 0), V(0, 0, 1), 33), math.radians(180), math.radians(206)), False)
sketch9.addGeometry(Part.LineSegment(V(-29, -14, 0), V(-47, -8, 0)), False)
sketch9.addGeometry(Part.ArcOfCircle(Part.Circle(V(-50, 0, 0), V(0, 0, 1), 9), math.radians(-70), math.radians(23)), False)
sketch9.addConstraint(Sketcher.Constraint("Coincident", 0, 2, 1, 1))
sketch9.addConstraint(Sketcher.Constraint("Tangent", 1, 2, 2, 1))
sketch9.addConstraint(Sketcher.Constraint("Coincident", 2, 2, 3, 1))
sketch9.addConstraint(Sketcher.Constraint("Coincident", 3, 2, 4, 1))
sketch9.addConstraint(Sketcher.Constraint("Coincident", 4, 2, 0, 1))
sketch9.addConstraint(Sketcher.Constraint("Coincident", 1, 3, -1, 1))
sketch9.addConstraint(Sketcher.Constraint("Equal", 1, 2))
sketch9.addConstraint(Sketcher.Constraint("PointOnObject", 4, 3, -1))
sketch9.addConstraint(Sketcher.Constraint("PointOnObject", 1, 2, -1))
sketch9.addConstraint(Sketcher.Constraint("Radius", 4, Q("9 mm")))
sketch9.addConstraint(Sketcher.Constraint("Radius", 1, Q("32.5 mm")))
sketch9.addConstraint(Sketcher.Constraint("Angle", 0, Q("30 deg")))
sketch9.addConstraint(Sketcher.Constraint("DistanceX", 4, 3, -1, 1, Q("50 mm")))
sketch9.addConstraint(Sketcher.Constraint("DistanceX", 0, 2, 2, 2, Q("1.860462 mm")))
sketch9.addConstraint(Sketcher.Constraint("DistanceY", 2, 2, 0, 2, Q("24.173728 mm")))
sketch9.addConstraint(Sketcher.Constraint("DistanceY", 2, 2, 3, 2, Q("5.962909 mm")))
pocket8 = body.newObject("PartDesign::Pocket", "Pocket007")
pocket8.Profile = sketch9
pocket8.Length = 10
pocket8.Reversed = True
doc.recompute()

fillet7 = body.newObject("PartDesign::Fillet", "Fillet006")
fillet7.Base = (pocket8, edges_at(pocket8, [
    (-41.739, 3.571, 2),
    (-46.869, -8.438, 2),
    (-29.135, -14.401, 2),
    (-30.996, 9.773, 2),
]))
fillet7.Radius = 2
doc.recompute()

fillet8 = body.newObject("PartDesign::Fillet", "Fillet007")
fillet8.Base = (fillet7, edges_at(fillet7, [(103, 60, 2), (103, 15.5, 2)]))
fillet8.Radius = 3
doc.recompute()

fillet9 = body.newObject("PartDesign::Fillet", "Fillet008")
fillet9.Base = (fillet8, edges_at(fillet8, [(-51.962, 30, 2)]))
fillet9.Radius = 20

sketch10 = body.newObject("Sketcher::SketchObject", "Sketch009")
sketch10.AttachmentSupport = (doc.getObject("XY_Plane"), [""])
sketch10.MapMode = "FlatFace"
sketch10.addGeometry(Part.Circle(V(-24, 42.7, 0), V(0, 0, 1), 1.6), False)
sketch10.addGeometry(Part.Circle(V(-41.3, 32.7, 0), V(0, 0, 1), 1.6), False)
sketch10.addConstraint(Sketcher.Constraint("Equal", 0, 1))
sketch10.addConstraint(Sketcher.Constraint("Diameter", 0, Q("3.2 mm")))
sketch10.addConstraint(Sketcher.Constraint("DistanceX", 0, 3, -1, 1, Q("24 mm")))
sketch10.addConstraint(Sketcher.Constraint("DistanceY", 1, 3, 0, 3, Q("10 mm")))
sketch10.addConstraint(Sketcher.Constraint("DistanceY", -1, 1, 0, 3, Q("42.679492 mm")))
sketch10.addConstraint(Sketcher.Constraint("DistanceX", 1, 3, -1, 1, Q("41.320508 mm")))
pocket9 = body.newObject("PartDesign::Pocket", "Pocket008")
pocket9.Profile = sketch10
pocket9.Type = "ThroughAll"
pocket9.Reversed = True

doc.recompute()
